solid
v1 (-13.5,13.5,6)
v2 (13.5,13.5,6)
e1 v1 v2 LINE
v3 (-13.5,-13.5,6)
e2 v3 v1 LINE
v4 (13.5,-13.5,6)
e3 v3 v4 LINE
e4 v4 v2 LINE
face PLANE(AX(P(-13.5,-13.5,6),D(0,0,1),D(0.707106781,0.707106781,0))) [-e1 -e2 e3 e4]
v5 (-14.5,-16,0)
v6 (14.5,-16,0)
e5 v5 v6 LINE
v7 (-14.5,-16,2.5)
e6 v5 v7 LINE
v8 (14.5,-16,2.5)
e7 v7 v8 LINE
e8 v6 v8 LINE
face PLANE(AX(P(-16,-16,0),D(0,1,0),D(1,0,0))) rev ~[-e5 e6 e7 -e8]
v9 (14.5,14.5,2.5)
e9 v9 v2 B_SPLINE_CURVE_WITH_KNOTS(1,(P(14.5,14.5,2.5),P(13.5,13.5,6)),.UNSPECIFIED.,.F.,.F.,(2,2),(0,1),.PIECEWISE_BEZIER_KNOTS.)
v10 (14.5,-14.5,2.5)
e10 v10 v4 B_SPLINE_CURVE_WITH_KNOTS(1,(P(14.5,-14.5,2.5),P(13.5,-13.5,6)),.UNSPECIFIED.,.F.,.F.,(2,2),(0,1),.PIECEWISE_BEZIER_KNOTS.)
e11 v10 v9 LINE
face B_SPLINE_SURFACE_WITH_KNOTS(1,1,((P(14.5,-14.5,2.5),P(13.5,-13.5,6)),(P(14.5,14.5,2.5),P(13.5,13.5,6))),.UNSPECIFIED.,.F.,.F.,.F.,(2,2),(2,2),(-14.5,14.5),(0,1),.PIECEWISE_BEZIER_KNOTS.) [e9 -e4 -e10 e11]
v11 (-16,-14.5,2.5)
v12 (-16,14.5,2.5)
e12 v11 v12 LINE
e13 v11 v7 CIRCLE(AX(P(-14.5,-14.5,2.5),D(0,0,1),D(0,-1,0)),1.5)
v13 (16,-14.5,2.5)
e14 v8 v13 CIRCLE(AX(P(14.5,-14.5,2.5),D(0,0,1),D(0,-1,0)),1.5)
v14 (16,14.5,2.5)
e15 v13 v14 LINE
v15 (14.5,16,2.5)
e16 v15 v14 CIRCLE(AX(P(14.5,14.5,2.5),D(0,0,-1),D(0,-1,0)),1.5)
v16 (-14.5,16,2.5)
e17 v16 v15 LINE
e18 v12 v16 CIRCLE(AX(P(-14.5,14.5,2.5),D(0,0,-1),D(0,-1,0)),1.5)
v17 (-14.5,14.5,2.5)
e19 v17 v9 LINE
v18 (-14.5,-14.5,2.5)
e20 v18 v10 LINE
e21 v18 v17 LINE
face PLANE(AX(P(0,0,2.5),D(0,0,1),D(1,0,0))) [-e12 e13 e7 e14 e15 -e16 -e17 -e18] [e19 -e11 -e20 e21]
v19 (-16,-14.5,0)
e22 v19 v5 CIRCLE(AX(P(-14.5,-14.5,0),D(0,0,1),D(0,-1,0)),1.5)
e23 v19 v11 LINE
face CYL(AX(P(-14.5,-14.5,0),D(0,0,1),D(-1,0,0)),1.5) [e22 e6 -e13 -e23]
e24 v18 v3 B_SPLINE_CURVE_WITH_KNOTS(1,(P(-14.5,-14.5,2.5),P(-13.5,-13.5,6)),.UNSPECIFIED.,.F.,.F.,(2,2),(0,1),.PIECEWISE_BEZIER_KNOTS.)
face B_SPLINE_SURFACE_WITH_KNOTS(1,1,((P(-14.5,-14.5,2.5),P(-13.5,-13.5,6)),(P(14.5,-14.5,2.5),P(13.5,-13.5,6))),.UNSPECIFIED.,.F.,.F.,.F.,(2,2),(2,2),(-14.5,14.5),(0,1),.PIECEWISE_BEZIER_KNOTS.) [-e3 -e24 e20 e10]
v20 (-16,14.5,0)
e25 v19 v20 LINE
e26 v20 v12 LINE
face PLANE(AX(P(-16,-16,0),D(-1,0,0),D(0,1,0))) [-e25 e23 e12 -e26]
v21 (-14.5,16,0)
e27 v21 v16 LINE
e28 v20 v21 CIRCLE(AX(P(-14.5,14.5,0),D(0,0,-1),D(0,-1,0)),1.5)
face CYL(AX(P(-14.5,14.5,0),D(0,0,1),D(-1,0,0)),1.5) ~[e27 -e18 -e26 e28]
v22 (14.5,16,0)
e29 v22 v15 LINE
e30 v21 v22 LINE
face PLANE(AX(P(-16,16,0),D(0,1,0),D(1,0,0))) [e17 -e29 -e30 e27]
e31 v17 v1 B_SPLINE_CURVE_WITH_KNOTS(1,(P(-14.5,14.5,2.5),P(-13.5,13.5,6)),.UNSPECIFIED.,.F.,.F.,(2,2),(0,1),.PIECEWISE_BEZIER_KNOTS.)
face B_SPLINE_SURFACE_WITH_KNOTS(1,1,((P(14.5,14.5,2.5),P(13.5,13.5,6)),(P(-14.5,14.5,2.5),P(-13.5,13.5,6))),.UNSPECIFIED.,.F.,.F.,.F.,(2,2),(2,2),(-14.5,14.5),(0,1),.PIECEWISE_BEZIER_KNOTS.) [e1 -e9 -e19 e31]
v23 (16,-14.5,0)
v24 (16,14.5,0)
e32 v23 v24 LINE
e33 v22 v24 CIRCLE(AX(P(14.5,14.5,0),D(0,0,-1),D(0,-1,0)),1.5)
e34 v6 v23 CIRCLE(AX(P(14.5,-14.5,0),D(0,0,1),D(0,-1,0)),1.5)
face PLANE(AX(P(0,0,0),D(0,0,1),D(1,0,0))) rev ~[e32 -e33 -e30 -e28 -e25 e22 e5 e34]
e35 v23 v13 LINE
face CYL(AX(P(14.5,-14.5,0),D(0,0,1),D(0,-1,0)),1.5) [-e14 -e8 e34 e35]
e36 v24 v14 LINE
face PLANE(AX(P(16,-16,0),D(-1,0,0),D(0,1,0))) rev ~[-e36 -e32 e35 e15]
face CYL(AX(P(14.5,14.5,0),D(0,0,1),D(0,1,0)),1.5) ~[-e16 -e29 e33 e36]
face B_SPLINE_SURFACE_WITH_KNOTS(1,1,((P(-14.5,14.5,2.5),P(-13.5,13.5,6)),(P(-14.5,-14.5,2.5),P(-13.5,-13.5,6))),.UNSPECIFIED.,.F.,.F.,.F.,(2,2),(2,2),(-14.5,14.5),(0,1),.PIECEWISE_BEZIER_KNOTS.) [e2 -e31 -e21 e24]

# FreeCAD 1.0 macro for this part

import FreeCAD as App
import Part
import Sketcher

V = App.Vector


def edges_at(feature, points):
    """Names of the edges that pass closest to the given points."""
    edges = feature.Shape.Edges
    near = lambda p: min(range(len(edges)), key=lambda i: edges[i].distToShape(Part.Vertex(*p))[0])
    return sorted({f"Edge{near(p) + 1}" for p in points})


def add_polygon(sketch, points):
    """Adds a closed chain of lines whose ends are joined by coincident constraints."""
    first, n = sketch.GeometryCount, len(points)
    for a, b in zip(points, points[1:] + points[:1]):
        sketch.addGeometry(Part.LineSegment(App.Vector(*a, 0), App.Vector(*b, 0)), False)
    for i in range(n):
        sketch.addConstraint(Sketcher.Constraint("Coincident", first + i, 2, first + (i + 1) % n, 1))

doc = App.newDocument("Part")
body = doc.addObject("PartDesign::Body", "Body")

# Sketch on XY plane
sketch1 = body.newObject("Sketcher::SketchObject", "Sketch")
sketch1.AttachmentSupport = (doc.getObject("XY_Plane"), [""])
sketch1.MapMode = "FlatFace"
add_polygon(sketch1, [(-16, 16), (-16, -16), (16, -16), (16, 16)])  # lines 0-3
sketch1.addConstraint([
    Sketcher.Constraint("Vertical", 0),
    Sketcher.Constraint("Horizontal", 1),
    Sketcher.Constraint("Vertical", 2),
    Sketcher.Constraint("Horizontal", 3),
    Sketcher.Constraint("Symmetric", 0, 2, 2, 2, -1, 1),
    Sketcher.Constraint("Equal", 3, 0),
    Sketcher.Constraint("DistanceX", 1, 1, 1, 2, 32.0),
])
pad1 = body.newObject("PartDesign::Pad", "Pad")
pad1.Profile = sketch1
pad1.Length = 2.5

# Sketch on XY plane
sketch2 = body.newObject("Sketcher::SketchObject", "Sketch001")
sketch2.AttachmentSupport = (doc.getObject("XY_Plane"), [""])
sketch2.MapMode = "FlatFace"
sketch2.AttachmentOffset = App.Placement(V(0, 0, 2.5), App.Rotation())
add_polygon(sketch2, [(-14, 14), (-14, -14), (14, -14), (14, 14)])  # lines 0-3
sketch2.addConstraint([
    Sketcher.Constraint("Vertical", 0),
    Sketcher.Constraint("Horizontal", 1),
    Sketcher.Constraint("Vertical", 2),
    Sketcher.Constraint("Horizontal", 3),
    Sketcher.Constraint("Symmetric", 0, 2, 2, 2, -1, 1),
    Sketcher.Constraint("Equal", 3, 0),
    Sketcher.Constraint("DistanceX", 1, 1, 1, 2, 29.0),
])

# Sketch on XY plane
sketch3 = body.newObject("Sketcher::SketchObject", "Sketch002")
sketch3.AttachmentSupport = (doc.getObject("XY_Plane"), [""])
sketch3.MapMode = "FlatFace"
sketch3.AttachmentOffset = App.Placement(V(0, 0, 6), App.Rotation())
add_polygon(sketch3, [(-14, 14), (-14, -14), (14, -14), (14, 14)])  # lines 0-3
sketch3.addConstraint([
    Sketcher.Constraint("Vertical", 0),
    Sketcher.Constraint("Horizontal", 1),
    Sketcher.Constraint("Vertical", 2),
    Sketcher.Constraint("Horizontal", 3),
    Sketcher.Constraint("Symmetric", 0, 2, 2, 2, -1, 1),
    Sketcher.Constraint("Equal", 3, 0),
    Sketcher.Constraint("DistanceX", 1, 1, 1, 2, 27.0),
])

additiveloft = body.newObject("PartDesign::AdditiveLoft", "AdditiveLoft")
additiveloft.Profile = sketch2
additiveloft.Sections = [sketch3]
doc.recompute()

fillet = body.newObject("PartDesign::Fillet", "Fillet")
fillet.Base = (additiveloft, edges_at(additiveloft, [
    (16, 16, 1.25),
    (16, -16, 1.25),
    (-16, 16, 1.25),
    (-16, -16, 1.25),
]))
fillet.Radius = 1.5

doc.recompute()
